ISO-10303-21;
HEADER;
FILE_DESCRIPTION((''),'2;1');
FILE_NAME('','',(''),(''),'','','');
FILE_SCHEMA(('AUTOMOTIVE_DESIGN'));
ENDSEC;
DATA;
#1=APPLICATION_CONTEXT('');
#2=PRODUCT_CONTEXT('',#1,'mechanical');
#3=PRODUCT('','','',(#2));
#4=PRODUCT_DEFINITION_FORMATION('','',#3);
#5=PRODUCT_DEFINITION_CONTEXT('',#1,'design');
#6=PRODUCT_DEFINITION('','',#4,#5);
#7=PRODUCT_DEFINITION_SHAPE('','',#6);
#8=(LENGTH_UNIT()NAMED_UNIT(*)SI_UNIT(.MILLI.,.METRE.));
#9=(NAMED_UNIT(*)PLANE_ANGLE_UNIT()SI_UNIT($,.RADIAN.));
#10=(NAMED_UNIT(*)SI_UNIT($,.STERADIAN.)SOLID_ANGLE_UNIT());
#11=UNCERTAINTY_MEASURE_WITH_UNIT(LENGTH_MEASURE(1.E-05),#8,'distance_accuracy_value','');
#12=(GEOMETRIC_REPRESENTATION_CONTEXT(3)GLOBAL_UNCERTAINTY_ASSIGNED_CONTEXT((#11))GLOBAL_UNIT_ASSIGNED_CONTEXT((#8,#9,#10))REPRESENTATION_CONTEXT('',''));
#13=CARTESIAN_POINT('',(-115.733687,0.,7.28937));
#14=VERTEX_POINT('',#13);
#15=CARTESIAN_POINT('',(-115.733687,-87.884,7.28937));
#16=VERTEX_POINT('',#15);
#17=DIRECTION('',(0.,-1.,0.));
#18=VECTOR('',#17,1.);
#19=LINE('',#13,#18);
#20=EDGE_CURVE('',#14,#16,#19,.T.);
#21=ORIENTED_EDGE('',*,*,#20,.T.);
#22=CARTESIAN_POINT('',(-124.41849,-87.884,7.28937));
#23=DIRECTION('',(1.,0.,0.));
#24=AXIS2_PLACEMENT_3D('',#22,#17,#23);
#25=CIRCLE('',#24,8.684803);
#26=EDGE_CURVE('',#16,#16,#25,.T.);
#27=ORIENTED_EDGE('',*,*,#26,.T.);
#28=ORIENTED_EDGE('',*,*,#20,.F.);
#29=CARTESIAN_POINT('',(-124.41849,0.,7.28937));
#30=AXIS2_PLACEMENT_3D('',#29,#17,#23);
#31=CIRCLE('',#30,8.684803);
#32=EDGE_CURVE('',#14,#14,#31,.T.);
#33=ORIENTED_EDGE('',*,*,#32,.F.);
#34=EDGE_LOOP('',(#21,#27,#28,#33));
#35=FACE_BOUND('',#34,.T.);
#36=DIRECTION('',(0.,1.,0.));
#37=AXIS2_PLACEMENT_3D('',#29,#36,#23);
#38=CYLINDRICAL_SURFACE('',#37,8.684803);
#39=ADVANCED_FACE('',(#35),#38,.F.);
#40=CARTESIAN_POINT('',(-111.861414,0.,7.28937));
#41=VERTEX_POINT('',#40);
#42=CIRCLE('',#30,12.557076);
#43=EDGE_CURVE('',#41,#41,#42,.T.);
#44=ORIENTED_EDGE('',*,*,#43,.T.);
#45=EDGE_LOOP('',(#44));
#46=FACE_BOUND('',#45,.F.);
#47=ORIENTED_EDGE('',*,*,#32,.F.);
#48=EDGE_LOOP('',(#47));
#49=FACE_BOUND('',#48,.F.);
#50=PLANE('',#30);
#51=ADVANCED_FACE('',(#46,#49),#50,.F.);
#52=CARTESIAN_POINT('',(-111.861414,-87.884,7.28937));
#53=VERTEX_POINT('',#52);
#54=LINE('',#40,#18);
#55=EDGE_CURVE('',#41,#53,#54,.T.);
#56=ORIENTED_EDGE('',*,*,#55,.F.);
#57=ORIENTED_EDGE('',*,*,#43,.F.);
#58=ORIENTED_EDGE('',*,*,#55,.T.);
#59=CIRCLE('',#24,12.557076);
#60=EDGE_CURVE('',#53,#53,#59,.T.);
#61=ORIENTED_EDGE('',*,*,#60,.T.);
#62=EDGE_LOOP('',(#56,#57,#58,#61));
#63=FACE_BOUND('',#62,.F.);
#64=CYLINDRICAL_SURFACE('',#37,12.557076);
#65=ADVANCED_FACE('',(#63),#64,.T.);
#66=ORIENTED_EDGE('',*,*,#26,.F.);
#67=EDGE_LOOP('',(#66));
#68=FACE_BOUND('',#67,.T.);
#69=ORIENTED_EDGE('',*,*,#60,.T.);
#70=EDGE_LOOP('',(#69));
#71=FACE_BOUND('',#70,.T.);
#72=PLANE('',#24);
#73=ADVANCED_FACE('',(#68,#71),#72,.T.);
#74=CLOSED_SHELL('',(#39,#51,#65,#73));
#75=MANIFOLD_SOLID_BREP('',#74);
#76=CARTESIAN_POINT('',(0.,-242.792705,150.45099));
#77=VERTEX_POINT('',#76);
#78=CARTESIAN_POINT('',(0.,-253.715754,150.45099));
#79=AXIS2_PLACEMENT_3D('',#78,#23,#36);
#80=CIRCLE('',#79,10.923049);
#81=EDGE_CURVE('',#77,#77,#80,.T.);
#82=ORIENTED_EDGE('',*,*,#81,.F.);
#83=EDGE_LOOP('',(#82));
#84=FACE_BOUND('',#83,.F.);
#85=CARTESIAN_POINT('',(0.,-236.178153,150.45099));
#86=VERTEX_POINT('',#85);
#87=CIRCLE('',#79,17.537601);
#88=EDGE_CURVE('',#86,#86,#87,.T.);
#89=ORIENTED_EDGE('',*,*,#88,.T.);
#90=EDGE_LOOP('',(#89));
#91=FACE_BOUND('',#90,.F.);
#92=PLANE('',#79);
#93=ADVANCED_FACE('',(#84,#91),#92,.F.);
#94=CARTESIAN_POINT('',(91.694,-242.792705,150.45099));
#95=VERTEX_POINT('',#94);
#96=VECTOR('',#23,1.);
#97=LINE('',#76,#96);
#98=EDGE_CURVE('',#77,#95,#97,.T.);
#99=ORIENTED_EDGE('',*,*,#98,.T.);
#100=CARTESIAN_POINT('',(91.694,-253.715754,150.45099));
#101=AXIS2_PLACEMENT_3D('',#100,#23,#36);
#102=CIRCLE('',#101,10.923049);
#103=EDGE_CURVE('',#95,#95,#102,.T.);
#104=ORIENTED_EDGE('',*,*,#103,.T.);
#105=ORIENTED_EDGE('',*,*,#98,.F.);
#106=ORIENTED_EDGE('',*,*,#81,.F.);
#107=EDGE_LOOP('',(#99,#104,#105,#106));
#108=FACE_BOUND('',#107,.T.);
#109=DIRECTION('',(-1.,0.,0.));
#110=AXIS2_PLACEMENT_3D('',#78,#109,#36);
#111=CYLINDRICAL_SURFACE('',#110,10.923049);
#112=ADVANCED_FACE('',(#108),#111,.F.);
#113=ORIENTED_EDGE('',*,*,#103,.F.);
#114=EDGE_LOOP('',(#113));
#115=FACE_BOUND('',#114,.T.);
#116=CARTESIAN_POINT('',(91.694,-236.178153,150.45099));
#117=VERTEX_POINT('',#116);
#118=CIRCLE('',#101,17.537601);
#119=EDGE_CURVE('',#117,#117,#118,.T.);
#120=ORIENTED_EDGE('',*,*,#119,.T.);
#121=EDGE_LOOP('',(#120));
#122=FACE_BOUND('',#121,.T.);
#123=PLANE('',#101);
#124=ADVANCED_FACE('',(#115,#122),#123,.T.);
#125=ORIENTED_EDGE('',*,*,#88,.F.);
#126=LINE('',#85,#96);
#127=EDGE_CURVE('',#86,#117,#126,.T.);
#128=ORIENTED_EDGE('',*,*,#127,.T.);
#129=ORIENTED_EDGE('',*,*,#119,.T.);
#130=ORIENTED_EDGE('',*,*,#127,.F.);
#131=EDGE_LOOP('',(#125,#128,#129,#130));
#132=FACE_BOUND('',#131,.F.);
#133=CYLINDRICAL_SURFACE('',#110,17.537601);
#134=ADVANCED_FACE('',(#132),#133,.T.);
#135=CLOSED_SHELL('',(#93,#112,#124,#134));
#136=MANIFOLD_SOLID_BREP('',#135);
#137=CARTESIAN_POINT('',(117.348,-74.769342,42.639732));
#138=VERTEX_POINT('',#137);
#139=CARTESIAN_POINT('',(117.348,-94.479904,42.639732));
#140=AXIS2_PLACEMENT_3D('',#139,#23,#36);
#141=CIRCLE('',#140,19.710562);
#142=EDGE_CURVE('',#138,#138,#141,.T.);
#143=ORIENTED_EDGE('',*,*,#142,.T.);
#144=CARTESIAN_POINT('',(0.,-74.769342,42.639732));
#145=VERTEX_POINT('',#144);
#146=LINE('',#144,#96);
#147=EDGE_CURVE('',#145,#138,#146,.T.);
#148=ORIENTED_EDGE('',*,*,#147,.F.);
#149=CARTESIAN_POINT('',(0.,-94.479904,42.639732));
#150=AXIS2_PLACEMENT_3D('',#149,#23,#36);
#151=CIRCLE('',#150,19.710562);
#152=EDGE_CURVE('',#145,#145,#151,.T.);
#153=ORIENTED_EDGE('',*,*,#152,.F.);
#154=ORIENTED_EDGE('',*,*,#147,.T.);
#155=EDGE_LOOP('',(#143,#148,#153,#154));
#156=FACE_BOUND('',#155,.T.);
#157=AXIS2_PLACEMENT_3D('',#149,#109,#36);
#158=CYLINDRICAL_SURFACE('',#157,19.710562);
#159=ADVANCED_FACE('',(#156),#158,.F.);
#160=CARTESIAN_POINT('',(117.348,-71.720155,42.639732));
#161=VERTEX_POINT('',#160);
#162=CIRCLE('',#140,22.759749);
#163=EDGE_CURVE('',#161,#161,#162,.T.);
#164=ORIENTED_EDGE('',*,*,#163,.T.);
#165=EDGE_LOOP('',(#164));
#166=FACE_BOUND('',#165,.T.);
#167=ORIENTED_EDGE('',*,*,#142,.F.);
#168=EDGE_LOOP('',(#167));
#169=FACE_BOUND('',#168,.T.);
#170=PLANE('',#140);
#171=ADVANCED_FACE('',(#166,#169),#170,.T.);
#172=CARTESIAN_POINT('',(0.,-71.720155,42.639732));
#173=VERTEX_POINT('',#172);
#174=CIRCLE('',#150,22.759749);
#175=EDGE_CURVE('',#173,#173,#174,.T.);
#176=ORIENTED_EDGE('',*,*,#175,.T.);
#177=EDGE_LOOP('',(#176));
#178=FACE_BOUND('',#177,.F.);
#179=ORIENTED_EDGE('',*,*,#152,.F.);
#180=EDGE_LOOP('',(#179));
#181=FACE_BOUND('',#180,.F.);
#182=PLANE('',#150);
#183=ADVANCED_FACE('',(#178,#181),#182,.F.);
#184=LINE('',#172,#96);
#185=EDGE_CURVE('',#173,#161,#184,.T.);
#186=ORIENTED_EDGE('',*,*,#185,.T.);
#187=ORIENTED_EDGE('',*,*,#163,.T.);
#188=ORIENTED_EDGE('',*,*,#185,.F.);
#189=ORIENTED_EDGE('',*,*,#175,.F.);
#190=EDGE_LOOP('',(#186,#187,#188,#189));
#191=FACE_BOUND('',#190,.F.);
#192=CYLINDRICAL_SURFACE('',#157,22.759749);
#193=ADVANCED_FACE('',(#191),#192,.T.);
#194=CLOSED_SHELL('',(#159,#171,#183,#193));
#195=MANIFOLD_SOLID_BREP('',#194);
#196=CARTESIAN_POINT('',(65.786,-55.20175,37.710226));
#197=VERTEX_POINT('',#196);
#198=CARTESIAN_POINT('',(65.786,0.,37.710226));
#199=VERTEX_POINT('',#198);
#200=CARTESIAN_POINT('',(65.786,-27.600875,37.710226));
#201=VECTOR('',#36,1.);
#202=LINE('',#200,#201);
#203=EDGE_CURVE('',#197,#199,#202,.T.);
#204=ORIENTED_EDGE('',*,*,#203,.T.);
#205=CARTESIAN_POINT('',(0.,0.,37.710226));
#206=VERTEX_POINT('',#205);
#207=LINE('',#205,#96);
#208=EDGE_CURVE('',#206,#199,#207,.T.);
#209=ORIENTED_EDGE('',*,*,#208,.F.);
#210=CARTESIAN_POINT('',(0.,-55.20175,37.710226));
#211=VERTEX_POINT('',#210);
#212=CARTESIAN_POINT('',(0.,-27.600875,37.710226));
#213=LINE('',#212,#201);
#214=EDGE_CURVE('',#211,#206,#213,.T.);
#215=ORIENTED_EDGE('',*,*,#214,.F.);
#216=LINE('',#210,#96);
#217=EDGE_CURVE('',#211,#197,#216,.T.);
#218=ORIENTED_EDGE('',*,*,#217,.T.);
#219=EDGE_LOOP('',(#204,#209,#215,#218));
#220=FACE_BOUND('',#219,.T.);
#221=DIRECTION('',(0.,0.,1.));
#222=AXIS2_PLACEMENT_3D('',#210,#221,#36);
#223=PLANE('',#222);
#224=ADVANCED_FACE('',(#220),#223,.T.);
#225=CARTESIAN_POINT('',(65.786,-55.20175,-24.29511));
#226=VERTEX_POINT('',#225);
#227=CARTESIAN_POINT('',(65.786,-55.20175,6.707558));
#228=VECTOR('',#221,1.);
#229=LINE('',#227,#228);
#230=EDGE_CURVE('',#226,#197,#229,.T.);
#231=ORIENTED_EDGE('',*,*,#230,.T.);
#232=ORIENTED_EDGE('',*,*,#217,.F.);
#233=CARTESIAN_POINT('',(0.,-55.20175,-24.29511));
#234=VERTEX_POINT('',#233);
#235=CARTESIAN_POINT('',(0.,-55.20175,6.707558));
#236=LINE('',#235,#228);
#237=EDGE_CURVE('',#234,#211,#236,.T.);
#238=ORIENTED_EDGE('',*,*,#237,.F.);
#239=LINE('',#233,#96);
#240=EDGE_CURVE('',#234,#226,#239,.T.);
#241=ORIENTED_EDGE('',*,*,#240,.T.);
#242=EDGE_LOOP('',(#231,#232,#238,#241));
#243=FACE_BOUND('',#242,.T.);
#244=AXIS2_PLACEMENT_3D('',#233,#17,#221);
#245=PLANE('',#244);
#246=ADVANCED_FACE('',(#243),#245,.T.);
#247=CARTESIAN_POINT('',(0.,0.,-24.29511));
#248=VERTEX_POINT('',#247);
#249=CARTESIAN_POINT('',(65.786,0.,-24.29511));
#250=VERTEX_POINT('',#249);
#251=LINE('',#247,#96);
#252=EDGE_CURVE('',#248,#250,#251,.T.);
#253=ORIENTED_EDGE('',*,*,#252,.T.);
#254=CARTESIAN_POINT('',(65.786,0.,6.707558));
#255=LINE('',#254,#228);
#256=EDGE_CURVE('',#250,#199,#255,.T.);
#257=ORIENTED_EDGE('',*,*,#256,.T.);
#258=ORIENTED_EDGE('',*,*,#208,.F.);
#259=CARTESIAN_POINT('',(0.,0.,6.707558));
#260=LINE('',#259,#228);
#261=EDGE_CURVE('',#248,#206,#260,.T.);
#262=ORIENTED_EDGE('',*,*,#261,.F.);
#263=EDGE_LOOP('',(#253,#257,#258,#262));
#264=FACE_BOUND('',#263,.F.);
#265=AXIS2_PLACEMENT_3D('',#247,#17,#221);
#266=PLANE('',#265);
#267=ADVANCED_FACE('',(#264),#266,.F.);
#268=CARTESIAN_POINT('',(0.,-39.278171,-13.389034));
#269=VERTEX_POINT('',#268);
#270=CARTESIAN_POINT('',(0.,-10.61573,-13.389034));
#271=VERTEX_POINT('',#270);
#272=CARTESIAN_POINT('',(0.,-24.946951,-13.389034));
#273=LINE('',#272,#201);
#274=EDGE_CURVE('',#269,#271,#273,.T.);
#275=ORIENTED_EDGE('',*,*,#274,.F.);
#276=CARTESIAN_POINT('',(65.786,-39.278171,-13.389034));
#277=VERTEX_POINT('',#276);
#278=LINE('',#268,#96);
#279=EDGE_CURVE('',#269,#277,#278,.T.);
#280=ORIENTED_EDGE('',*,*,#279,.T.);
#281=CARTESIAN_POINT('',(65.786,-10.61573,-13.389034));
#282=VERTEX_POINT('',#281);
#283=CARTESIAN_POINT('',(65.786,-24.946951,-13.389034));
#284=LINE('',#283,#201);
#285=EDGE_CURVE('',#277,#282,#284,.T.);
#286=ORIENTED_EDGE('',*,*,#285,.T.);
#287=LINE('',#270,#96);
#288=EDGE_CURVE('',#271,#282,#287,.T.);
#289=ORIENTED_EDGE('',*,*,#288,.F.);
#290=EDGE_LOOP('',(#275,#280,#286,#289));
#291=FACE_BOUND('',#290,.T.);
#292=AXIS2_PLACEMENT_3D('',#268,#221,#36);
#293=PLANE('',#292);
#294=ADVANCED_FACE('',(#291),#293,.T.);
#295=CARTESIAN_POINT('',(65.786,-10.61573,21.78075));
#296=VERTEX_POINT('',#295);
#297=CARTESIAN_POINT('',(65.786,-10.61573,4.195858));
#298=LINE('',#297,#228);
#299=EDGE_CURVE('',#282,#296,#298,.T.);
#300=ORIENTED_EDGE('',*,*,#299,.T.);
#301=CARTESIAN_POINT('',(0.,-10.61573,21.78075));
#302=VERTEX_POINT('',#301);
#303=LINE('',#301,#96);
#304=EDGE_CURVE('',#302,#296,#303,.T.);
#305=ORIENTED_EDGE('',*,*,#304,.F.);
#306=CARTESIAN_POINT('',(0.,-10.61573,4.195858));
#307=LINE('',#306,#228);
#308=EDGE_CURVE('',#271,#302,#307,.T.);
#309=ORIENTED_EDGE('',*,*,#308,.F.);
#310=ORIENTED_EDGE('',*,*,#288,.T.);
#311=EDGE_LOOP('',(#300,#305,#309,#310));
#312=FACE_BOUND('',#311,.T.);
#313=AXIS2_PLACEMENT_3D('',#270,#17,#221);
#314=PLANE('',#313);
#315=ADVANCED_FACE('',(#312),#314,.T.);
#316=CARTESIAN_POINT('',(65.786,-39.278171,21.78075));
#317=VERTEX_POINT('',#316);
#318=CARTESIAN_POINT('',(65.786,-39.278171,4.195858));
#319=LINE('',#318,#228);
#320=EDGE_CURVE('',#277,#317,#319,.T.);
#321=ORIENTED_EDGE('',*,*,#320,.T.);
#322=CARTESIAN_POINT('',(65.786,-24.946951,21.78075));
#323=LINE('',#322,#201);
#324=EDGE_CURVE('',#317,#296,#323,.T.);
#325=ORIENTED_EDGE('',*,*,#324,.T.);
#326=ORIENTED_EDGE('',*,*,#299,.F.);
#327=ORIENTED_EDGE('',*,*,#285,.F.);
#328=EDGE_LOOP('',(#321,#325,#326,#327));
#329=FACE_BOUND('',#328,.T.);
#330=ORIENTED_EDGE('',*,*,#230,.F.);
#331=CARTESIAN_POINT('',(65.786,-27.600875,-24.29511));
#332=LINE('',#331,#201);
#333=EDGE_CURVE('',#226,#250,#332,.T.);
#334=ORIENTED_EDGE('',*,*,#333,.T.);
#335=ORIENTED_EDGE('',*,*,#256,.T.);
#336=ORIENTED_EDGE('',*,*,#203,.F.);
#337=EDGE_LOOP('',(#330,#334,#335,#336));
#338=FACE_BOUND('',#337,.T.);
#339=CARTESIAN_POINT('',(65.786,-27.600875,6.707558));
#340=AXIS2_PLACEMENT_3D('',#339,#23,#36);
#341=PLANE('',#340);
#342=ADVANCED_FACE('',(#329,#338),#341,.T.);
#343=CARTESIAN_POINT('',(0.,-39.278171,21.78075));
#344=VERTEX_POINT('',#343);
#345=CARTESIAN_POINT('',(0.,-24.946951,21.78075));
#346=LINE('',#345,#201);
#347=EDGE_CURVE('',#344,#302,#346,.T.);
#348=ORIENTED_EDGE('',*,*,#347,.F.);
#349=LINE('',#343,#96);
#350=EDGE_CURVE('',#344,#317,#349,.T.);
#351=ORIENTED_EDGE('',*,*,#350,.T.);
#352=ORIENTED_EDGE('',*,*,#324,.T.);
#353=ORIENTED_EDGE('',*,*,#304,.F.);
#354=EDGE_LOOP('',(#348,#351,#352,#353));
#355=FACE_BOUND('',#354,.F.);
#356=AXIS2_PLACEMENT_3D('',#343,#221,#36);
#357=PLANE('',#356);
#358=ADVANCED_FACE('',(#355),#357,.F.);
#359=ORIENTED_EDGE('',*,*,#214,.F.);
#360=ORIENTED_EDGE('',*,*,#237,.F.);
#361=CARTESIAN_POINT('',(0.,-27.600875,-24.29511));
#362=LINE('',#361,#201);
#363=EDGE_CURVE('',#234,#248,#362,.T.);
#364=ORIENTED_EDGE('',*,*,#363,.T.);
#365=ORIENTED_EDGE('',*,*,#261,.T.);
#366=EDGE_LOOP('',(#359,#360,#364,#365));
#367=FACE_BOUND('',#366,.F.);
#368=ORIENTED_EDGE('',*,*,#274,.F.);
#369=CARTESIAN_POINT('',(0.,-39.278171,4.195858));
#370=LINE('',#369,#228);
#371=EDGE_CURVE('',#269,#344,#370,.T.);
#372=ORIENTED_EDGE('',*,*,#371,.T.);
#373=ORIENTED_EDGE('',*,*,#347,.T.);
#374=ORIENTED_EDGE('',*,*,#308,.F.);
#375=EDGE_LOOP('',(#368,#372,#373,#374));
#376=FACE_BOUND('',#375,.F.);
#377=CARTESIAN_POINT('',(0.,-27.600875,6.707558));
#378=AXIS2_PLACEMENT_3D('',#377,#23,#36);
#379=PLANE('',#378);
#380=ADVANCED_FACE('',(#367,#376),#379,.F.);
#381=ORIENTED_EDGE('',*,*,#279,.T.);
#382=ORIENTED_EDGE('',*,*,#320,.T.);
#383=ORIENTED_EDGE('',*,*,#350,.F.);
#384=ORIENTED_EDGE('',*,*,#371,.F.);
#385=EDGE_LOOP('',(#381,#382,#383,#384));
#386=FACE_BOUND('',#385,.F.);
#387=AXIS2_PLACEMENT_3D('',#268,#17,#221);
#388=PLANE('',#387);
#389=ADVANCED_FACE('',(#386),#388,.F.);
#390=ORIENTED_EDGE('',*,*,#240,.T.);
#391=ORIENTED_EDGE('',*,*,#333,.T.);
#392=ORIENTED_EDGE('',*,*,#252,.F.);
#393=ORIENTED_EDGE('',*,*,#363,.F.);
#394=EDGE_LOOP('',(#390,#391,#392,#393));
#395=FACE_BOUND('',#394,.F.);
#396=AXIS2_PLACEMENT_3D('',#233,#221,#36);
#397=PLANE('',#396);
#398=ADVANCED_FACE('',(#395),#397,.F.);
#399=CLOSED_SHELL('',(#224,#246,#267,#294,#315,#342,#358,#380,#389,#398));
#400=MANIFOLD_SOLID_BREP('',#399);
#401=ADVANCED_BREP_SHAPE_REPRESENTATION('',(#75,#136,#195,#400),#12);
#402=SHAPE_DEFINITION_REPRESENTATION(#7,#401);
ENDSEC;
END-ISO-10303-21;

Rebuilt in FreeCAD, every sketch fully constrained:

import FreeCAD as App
import Part
import Sketcher
Q = App.Units.Quantity


def add_polygon(sketch, points):
    """Adds a closed chain of lines whose ends are joined by coincident constraints."""
    first, n = sketch.GeometryCount, len(points)
    for a, b in zip(points, points[1:] + points[:1]):
        sketch.addGeometry(Part.LineSegment(App.Vector(*a, 0), App.Vector(*b, 0)), False)
    for i in range(n):
        sketch.addConstraint(Sketcher.Constraint("Coincident", first + i, 2, first + (i + 1) % n, 1))

doc = App.newDocument("Part")
body = doc.addObject("PartDesign::Body", "Body")

# Sketch on XZ plane
sketch1 = doc.addObject("Sketcher::SketchObject", "Sketch")
body.addObject(sketch1)
sketch1.AttachmentSupport = (doc.XZ_Plane, [""])
sketch1.MapMode = "FlatFace"
sketch1.addGeometry(Part.Circle(App.Vector(-124, 7, 0), App.Vector(0, 0, 1), 13), False)
sketch1.addGeometry(Part.Circle(App.Vector(-124, 7, 0), App.Vector(0, 0, 1), 9), False)
sketch1.addConstraint(Sketcher.Constraint("Coincident", 1, 3, 0, 3))
sketch1.addConstraint(Sketcher.Constraint("Diameter", 0, 25.114152))
sketch1.addConstraint(Sketcher.Constraint("Diameter", 1, 17.369606))
sketch1.addConstraint(Sketcher.Constraint("DistanceX", 0, 3, -1, 1, 124.41849))
sketch1.addConstraint(Sketcher.Constraint("DistanceY", -1, 1, 0, 3, 7.28937))
pad1 = doc.addObject("PartDesign::Pad", "Pad")
body.addObject(pad1)
pad1.Profile = sketch1
pad1.Length = Q("3.46 in")
body2 = doc.addObject("PartDesign::Body", "Body001")

# Sketch on YZ plane
sketch2 = doc.addObject("Sketcher::SketchObject", "Sketch001")
body2.addObject(sketch2)
sketch2.AttachmentSupport = (doc.getObject("YZ_Plane001"), [""])
sketch2.MapMode = "FlatFace"
sketch2.addGeometry(Part.Circle(App.Vector(-254, 150, 0), App.Vector(0, 0, 1), 18), False)
sketch2.addGeometry(Part.Circle(App.Vector(-254, 150, 0), App.Vector(0, 0, 1), 11), False)
sketch2.addConstraint(Sketcher.Constraint("Coincident", 1, 3, 0, 3))
sketch2.addConstraint(Sketcher.Constraint("Diameter", 0, 35.075202))
sketch2.addConstraint(Sketcher.Constraint("Diameter", 1, 21.846098))
sketch2.addConstraint(Sketcher.Constraint("DistanceY", -1, 1, 0, 3, 150.45099))
sketch2.addConstraint(Sketcher.Constraint("DistanceX", 0, 3, -1, 1, 253.715754))
pad2 = doc.addObject("PartDesign::Pad", "Pad001")
body2.addObject(pad2)
pad2.Profile = sketch2
pad2.Length = Q("3.61 in")
body3 = doc.addObject("PartDesign::Body", "Body002")

# Sketch on YZ plane
sketch3 = doc.addObject("Sketcher::SketchObject", "Sketch002")
body3.addObject(sketch3)
sketch3.AttachmentSupport = (doc.getObject("YZ_Plane002"), [""])
sketch3.MapMode = "FlatFace"
sketch3.addGeometry(Part.Circle(App.Vector(-94, 43, 0), App.Vector(0, 0, 1), 23), False)
sketch3.addGeometry(Part.Circle(App.Vector(-94, 43, 0), App.Vector(0, 0, 1), 20), False)
sketch3.addConstraint(Sketcher.Constraint("Coincident", 1, 3, 0, 3))
sketch3.addConstraint(Sketcher.Constraint("Diameter", 0, 45.519498))
sketch3.addConstraint(Sketcher.Constraint("Diameter", 1, 39.421124))
sketch3.addConstraint(Sketcher.Constraint("DistanceX", 0, 3, -1, 1, 94.479904))
sketch3.addConstraint(Sketcher.Constraint("DistanceY", -1, 1, 0, 3, 42.639732))
pad3 = doc.addObject("PartDesign::Pad", "Pad002")
body3.addObject(pad3)
pad3.Profile = sketch3
pad3.Length = Q("4.62 in")
body4 = doc.addObject("PartDesign::Body", "Body003")

# Sketch on YZ plane
sketch4 = doc.addObject("Sketcher::SketchObject", "Sketch003")
body4.addObject(sketch4)
sketch4.AttachmentSupport = (doc.getObject("YZ_Plane003"), [""])
sketch4.MapMode = "FlatFace"
add_polygon(sketch4, [(-55, 38), (-55, -24), (0, -24), (0, 38)])  # lines 0-3
add_polygon(sketch4, [(-11, -13), (-39, -13), (-39, 22), (-11, 22)])  # lines 4-7
sketch4.addConstraint(Sketcher.Constraint("Vertical", 0))
sketch4.addConstraint(Sketcher.Constraint("Horizontal", 1))
sketch4.addConstraint(Sketcher.Constraint("Vertical", 2))
sketch4.addConstraint(Sketcher.Constraint("Horizontal", 3))
sketch4.addConstraint(Sketcher.Constraint("Horizontal", 4))
sketch4.addConstraint(Sketcher.Constraint("Vertical", 5))
sketch4.addConstraint(Sketcher.Constraint("Horizontal", 6))
sketch4.addConstraint(Sketcher.Constraint("Vertical", 7))
sketch4.addConstraint(Sketcher.Constraint("PointOnObject", 1, 2, -2))
sketch4.addConstraint(Sketcher.Constraint("DistanceX", 1, 1, 1, 2, 55.20175))
sketch4.addConstraint(Sketcher.Constraint("DistanceX", 4, 2, 4, 1, 28.662441))
sketch4.addConstraint(Sketcher.Constraint("DistanceY", 0, 2, 0, 1, 62.005337))
sketch4.addConstraint(Sketcher.Constraint("DistanceY", 5, 1, 5, 2, 35.169784))
sketch4.addConstraint(Sketcher.Constraint("DistanceY", 0, 2, -1, 1, 24.29511))
sketch4.addConstraint(Sketcher.Constraint("DistanceX", 4, 2, -1, 1, 39.278171))
sketch4.addConstraint(Sketcher.Constraint("DistanceY", -1, 1, 5, 2, 21.78075))
pad4 = doc.addObject("PartDesign::Pad", "Pad003")
body4.addObject(pad4)
pad4.Profile = sketch4
pad4.Length = Q("2.59 in")

doc.recompute()
